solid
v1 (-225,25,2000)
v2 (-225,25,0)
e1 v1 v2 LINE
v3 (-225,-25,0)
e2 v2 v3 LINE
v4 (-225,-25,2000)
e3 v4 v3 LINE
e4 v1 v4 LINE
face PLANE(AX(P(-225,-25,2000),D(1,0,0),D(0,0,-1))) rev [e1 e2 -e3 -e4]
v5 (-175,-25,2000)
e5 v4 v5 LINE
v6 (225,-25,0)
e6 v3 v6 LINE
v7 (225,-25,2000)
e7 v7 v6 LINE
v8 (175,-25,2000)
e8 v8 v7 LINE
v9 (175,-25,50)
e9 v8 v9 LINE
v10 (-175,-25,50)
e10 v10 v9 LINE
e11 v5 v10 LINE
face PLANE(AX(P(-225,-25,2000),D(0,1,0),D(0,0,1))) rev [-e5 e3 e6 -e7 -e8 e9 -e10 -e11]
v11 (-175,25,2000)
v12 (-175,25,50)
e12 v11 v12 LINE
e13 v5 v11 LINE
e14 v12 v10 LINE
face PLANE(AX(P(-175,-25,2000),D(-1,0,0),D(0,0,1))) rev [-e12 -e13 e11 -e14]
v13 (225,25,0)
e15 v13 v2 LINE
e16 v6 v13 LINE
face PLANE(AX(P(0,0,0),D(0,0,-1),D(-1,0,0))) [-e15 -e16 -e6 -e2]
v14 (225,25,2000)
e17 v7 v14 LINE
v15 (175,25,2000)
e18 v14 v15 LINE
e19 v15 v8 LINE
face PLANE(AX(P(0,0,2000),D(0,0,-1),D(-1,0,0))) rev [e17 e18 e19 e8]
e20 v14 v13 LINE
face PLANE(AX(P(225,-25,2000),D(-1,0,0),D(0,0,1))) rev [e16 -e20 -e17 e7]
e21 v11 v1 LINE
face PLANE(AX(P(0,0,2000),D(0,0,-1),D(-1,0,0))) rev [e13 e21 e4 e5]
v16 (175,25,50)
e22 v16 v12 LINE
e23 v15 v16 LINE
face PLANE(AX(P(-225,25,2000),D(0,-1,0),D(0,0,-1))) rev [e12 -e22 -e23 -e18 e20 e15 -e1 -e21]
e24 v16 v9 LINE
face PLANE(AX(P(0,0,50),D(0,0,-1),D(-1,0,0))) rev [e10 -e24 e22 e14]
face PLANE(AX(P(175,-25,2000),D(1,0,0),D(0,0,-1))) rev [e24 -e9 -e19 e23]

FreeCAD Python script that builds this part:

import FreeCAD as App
import Part
import Sketcher

V = App.Vector

doc = App.newDocument("Part")
body = doc.addObject("PartDesign::Body", "Body")

sketch1 = body.newObject("Sketcher::SketchObject", "Sketch")
sketch1.AttachmentSupport = (doc.getObject("XY_Plane"), [""])
sketch1.MapMode = "FlatFace"
sketch1.addGeometry([
    Part.LineSegment(V(-225, 25, 0), V(-225, -25, 0)),
    Part.LineSegment(V(-225, -25, 0), V(-175, -25, 0)),
    Part.LineSegment(V(-175, -25, 0), V(-175, 25, 0)),
    Part.LineSegment(V(-175, 25, 0), V(-225, 25, 0)),
], False)
sketch1.addConstraint([
    Sketcher.Constraint("Coincident", 0, 2, 1, 1),
    Sketcher.Constraint("Coincident", 1, 2, 2, 1),
    Sketcher.Constraint("Coincident", 2, 2, 3, 1),
    Sketcher.Constraint("Coincident", 3, 2, 0, 1),
    Sketcher.Constraint("Vertical", 0),
    Sketcher.Constraint("Horizontal", 1),
    Sketcher.Constraint("Vertical", 2),
    Sketcher.Constraint("Horizontal", 3),
    Sketcher.Constraint("Equal", 3, 0),
    Sketcher.Constraint("DistanceX", 1, 1, 1, 2, 50.0),
    Sketcher.Constraint("DistanceX", 0, 2, -1, 1, 225.0),
    Sketcher.Constraint("DistanceY", 0, 2, -1, 1, 25.0),
])
pad1 = body.newObject("PartDesign::Pad", "Pad")
pad1.Profile = sketch1
pad1.Length = 2000
body2 = doc.addObject("PartDesign::Body", "Body001")

sketch2 = body2.newObject("Sketcher::SketchObject", "Sketch001")
sketch2.AttachmentSupport = (doc.getObject("XY_Plane001"), [""])
sketch2.MapMode = "FlatFace"
sketch2.addGeometry([
    Part.LineSegment(V(175, 25, 0), V(175, -25, 0)),
    Part.LineSegment(V(175, -25, 0), V(225, -25, 0)),
    Part.LineSegment(V(225, -25, 0), V(225, 25, 0)),
    Part.LineSegment(V(225, 25, 0), V(175, 25, 0)),
], False)
sketch2.addConstraint([
    Sketcher.Constraint("Coincident", 0, 2, 1, 1),
    Sketcher.Constraint("Coincident", 1, 2, 2, 1),
    Sketcher.Constraint("Coincident", 2, 2, 3, 1),
    Sketcher.Constraint("Coincident", 3, 2, 0, 1),
    Sketcher.Constraint("Vertical", 0),
    Sketcher.Constraint("Horizontal", 1),
    Sketcher.Constraint("Vertical", 2),
    Sketcher.Constraint("Horizontal", 3),
    Sketcher.Constraint("Equal", 3, 0),
    Sketcher.Constraint("DistanceX", 1, 1, 1, 2, 50.0),
    Sketcher.Constraint("DistanceX", -1, 1, 0, 2, 175.0),
    Sketcher.Constraint("DistanceY", 0, 2, -1, 1, 25.0),
])
pad2 = body2.newObject("PartDesign::Pad", "Pad001")
pad2.Profile = sketch2
pad2.Length = 2000
body.AllowCompound = True
doc.recompute()

boolean = body.newObject("PartDesign::Boolean", "Boolean")
boolean.Type = "Fuse"
boolean.addObjects([body2])

sketch3 = body.newObject("Sketcher::SketchObject", "Sketch002")
sketch3.AttachmentSupport = (doc.getObject("XY_Plane"), [""])
sketch3.MapMode = "FlatFace"
sketch3.addGeometry([
    Part.LineSegment(V(-200, 25, 0), V(-200, -25, 0)),
    Part.LineSegment(V(-200, -25, 0), V(200, -25, 0)),
    Part.LineSegment(V(200, -25, 0), V(200, 25, 0)),
    Part.LineSegment(V(200, 25, 0), V(-200, 25, 0)),
], False)
sketch3.addConstraint([
    Sketcher.Constraint("Coincident", 0, 2, 1, 1),
    Sketcher.Constraint("Coincident", 1, 2, 2, 1),
    Sketcher.Constraint("Coincident", 2, 2, 3, 1),
    Sketcher.Constraint("Coincident", 3, 2, 0, 1),
    Sketcher.Constraint("Vertical", 0),
    Sketcher.Constraint("Horizontal", 1),
    Sketcher.Constraint("Vertical", 2),
    Sketcher.Constraint("Horizontal", 3),
    Sketcher.Constraint("Symmetric", 0, 2, 2, 2, -1, 1),
    Sketcher.Constraint("DistanceX", 1, 1, 1, 2, 400.0),
    Sketcher.Constraint("DistanceY", 0, 2, 0, 1, 50.0),
])
pad3 = body.newObject("PartDesign::Pad", "Pad002")
pad3.Profile = sketch3
pad3.Length = 50

sketch4 = body.newObject("Sketcher::SketchObject", "Sketch003")
sketch4.AttachmentSupport = (doc.getObject("XY_Plane"), [""])
sketch4.MapMode = "FlatFace"
sketch4.addGeometry([
    Part.LineSegment(V(-200, 25, 0), V(-200, -25, 0)),
    Part.LineSegment(V(-200, -25, 0), V(200, -25, 0)),
    Part.LineSegment(V(200, -25, 0), V(200, 25, 0)),
    Part.LineSegment(V(200, 25, 0), V(-200, 25, 0)),
], False)
sketch4.addConstraint([
    Sketcher.Constraint("Coincident", 0, 2, 1, 1),
    Sketcher.Constraint("Coincident", 1, 2, 2, 1),
    Sketcher.Constraint("Coincident", 2, 2, 3, 1),
    Sketcher.Constraint("Coincident", 3, 2, 0, 1),
    Sketcher.Constraint("Vertical", 0),
    Sketcher.Constraint("Horizontal", 1),
    Sketcher.Constraint("Vertical", 2),
    Sketcher.Constraint("Horizontal", 3),
    Sketcher.Constraint("Symmetric", 0, 2, 2, 2, -1, 1),
    Sketcher.Constraint("DistanceX", 1, 1, 1, 2, 400.0),
    Sketcher.Constraint("DistanceY", 0, 2, 0, 1, 50.0),
])
pad4 = body.newObject("PartDesign::Pad", "Pad003")
pad4.Profile = sketch4
pad4.Length = 50

sketch5 = body.newObject("Sketcher::SketchObject", "Sketch004")
sketch5.AttachmentSupport = (doc.getObject("XY_Plane"), [""])
sketch5.MapMode = "FlatFace"
sketch5.addGeometry([
    Part.LineSegment(V(-200, 25, 0), V(-200, -25, 0)),
    Part.LineSegment(V(-200, -25, 0), V(200, -25, 0)),
    Part.LineSegment(V(200, -25, 0), V(200, 25, 0)),
    Part.LineSegment(V(200, 25, 0), V(-200, 25, 0)),
], False)
sketch5.addConstraint([
    Sketcher.Constraint("Coincident", 0, 2, 1, 1),
    Sketcher.Constraint("Coincident", 1, 2, 2, 1),
    Sketcher.Constraint("Coincident", 2, 2, 3, 1),
    Sketcher.Constraint("Coincident", 3, 2, 0, 1),
    Sketcher.Constraint("Vertical", 0),
    Sketcher.Constraint("Horizontal", 1),
    Sketcher.Constraint("Vertical", 2),
    Sketcher.Constraint("Horizontal", 3),
    Sketcher.Constraint("Symmetric", 0, 2, 2, 2, -1, 1),
    Sketcher.Constraint("DistanceX", 1, 1, 1, 2, 400.0),
    Sketcher.Constraint("DistanceY", 0, 2, 0, 1, 50.0),
])
pad5 = body.newObject("PartDesign::Pad", "Pad004")
pad5.Profile = sketch5
pad5.Length = 50

sketch6 = body.newObject("Sketcher::SketchObject", "Sketch005")
sketch6.AttachmentSupport = (doc.getObject("XY_Plane"), [""])
sketch6.MapMode = "FlatFace"
sketch6.addGeometry([
    Part.LineSegment(V(-200, 25, 0), V(-200, -25, 0)),
    Part.LineSegment(V(-200, -25, 0), V(200, -25, 0)),
    Part.LineSegment(V(200, -25, 0), V(200, 25, 0)),
    Part.LineSegment(V(200, 25, 0), V(-200, 25, 0)),
], False)
sketch6.addConstraint([
    Sketcher.Constraint("Coincident", 0, 2, 1, 1),
    Sketcher.Constraint("Coincident", 1, 2, 2, 1),
    Sketcher.Constraint("Coincident", 2, 2, 3, 1),
    Sketcher.Constraint("Coincident", 3, 2, 0, 1),
    Sketcher.Constraint("Vertical", 0),
    Sketcher.Constraint("Horizontal", 1),
    Sketcher.Constraint("Vertical", 2),
    Sketcher.Constraint("Horizontal", 3),
    Sketcher.Constraint("Symmetric", 0, 2, 2, 2, -1, 1),
    Sketcher.Constraint("DistanceX", 1, 1, 1, 2, 400.0),
    Sketcher.Constraint("DistanceY", 0, 2, 0, 1, 50.0),
])
pad6 = body.newObject("PartDesign::Pad", "Pad005")
pad6.Profile = sketch6
pad6.Length = 50

sketch7 = body.newObject("Sketcher::SketchObject", "Sketch006")
sketch7.AttachmentSupport = (doc.getObject("XY_Plane"), [""])
sketch7.MapMode = "FlatFace"
sketch7.addGeometry([
    Part.LineSegment(V(-200, 25, 0), V(-200, -25, 0)),
    Part.LineSegment(V(-200, -25, 0), V(200, -25, 0)),
    Part.LineSegment(V(200, -25, 0), V(200, 25, 0)),
    Part.LineSegment(V(200, 25, 0), V(-200, 25, 0)),
], False)
sketch7.addConstraint([
    Sketcher.Constraint("Coincident", 0, 2, 1, 1),
    Sketcher.Constraint("Coincident", 1, 2, 2, 1),
    Sketcher.Constraint("Coincident", 2, 2, 3, 1),
    Sketcher.Constraint("Coincident", 3, 2, 0, 1),
    Sketcher.Constraint("Vertical", 0),
    Sketcher.Constraint("Horizontal", 1),
    Sketcher.Constraint("Vertical", 2),
    Sketcher.Constraint("Horizontal", 3),
    Sketcher.Constraint("Symmetric", 0, 2, 2, 2, -1, 1),
    Sketcher.Constraint("DistanceX", 1, 1, 1, 2, 400.0),
    Sketcher.Constraint("DistanceY", 0, 2, 0, 1, 50.0),
])
pad7 = body.newObject("PartDesign::Pad", "Pad006")
pad7.Profile = sketch7
pad7.Length = 50

doc.recompute()
